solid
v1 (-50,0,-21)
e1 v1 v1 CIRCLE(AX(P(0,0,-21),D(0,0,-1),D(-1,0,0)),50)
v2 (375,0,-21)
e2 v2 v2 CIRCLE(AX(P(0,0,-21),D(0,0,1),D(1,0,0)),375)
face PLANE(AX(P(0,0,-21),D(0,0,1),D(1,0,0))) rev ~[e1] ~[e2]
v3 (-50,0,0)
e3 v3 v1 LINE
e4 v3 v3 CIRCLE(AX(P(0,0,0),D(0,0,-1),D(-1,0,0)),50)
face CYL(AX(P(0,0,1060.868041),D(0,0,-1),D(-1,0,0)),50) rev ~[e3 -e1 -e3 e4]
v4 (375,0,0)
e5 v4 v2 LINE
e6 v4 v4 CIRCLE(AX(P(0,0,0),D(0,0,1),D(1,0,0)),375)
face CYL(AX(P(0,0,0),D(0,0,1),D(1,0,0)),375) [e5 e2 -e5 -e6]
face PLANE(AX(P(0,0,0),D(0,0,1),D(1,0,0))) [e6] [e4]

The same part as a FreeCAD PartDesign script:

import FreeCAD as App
import Part
import Sketcher
from FreeCAD import Vector

doc = App.newDocument("Part")
body = doc.addObject("PartDesign::Body", "Body")

# Sketch on XY plane
sketch1 = body.newObject("Sketcher::SketchObject", "Sketch")
sketch1.AttachmentSupport = (doc.getObject("XY_Plane"), [""])
sketch1.MapMode = "FlatFace"
sketch1.addGeometry(Part.Circle(Vector(0, 0, 0), Vector(0, 0, 1), 375), False)
sketch1.addConstraint(Sketcher.Constraint("Coincident", 0, 3, -1, 1))
sketch1.addConstraint(Sketcher.Constraint("Diameter", 0, 750.0))
pad1 = body.newObject("PartDesign::Pad", "Pad")
pad1.Profile = sketch1
pad1.Length = 21
pad1.Reversed = True

# Sketch on XY plane
sketch2 = body.newObject("Sketcher::SketchObject", "Sketch001")
sketch2.AttachmentSupport = (doc.getObject("XY_Plane"), [""])
sketch2.MapMode = "FlatFace"
sketch2.addGeometry(Part.Circle(Vector(0, 0, 0), Vector(0, 0, 1), 50), False)
sketch2.addConstraint(Sketcher.Constraint("Coincident", 0, 3, -1, 1))
sketch2.addConstraint(Sketcher.Constraint("Diameter", 0, 100.0))
doc.recompute()
hole = body.newObject("PartDesign::Hole", "Hole")
hole.Profile = sketch2
hole.ThreadType = "None"
hole.Diameter = 100
hole.DepthType = "ThroughAll"

doc.recompute()
